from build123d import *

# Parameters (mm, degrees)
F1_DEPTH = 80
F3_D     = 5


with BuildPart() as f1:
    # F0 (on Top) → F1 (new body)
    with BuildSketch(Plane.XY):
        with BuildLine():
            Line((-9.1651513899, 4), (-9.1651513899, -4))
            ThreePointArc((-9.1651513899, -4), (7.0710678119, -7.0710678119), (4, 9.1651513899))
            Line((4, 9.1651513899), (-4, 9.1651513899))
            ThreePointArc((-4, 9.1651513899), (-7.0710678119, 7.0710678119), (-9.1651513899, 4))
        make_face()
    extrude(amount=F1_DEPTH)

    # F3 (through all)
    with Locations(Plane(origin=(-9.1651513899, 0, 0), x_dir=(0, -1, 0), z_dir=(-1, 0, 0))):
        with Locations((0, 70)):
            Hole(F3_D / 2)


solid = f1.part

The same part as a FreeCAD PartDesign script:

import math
import FreeCAD as App
import Part
import Sketcher

V = App.Vector

doc = App.newDocument("Part")
body = doc.addObject("PartDesign::Body", "Body")

# Sketch on XY plane
sketch1 = doc.addObject("Sketcher::SketchObject", "Sketch")
body.addObject(sketch1)
sketch1.AttachmentSupport = (doc.XY_Plane, [""])
sketch1.MapMode = "FlatFace"
sketch1.addGeometry(Part.LineSegment(V(-9, 4, 0), V(-9, -4, 0)), False)
sketch1.addGeometry(Part.ArcOfCircle(Part.Circle(V(0, 0, 0), V(0, 0, 1), 10), math.radians(-156), math.radians(66)), False)
sketch1.addGeometry(Part.LineSegment(V(4, 9, 0), V(-4, 9, 0)), False)
sketch1.addGeometry(Part.ArcOfCircle(Part.Circle(V(0, 0, 0), V(0, 0, 1), 10), math.radians(114), math.radians(156)), False)
sketch1.addConstraint(Sketcher.Constraint("Coincident", 0, 2, 1, 1))
sketch1.addConstraint(Sketcher.Constraint("Coincident", 1, 2, 2, 1))
sketch1.addConstraint(Sketcher.Constraint("Coincident", 2, 2, 3, 1))
sketch1.addConstraint(Sketcher.Constraint("Coincident", 3, 2, 0, 1))
sketch1.addConstraint(Sketcher.Constraint("Vertical", 0))
sketch1.addConstraint(Sketcher.Constraint("Horizontal", 2))
sketch1.addConstraint(Sketcher.Constraint("Coincident", 1, 3, -1, 1))
sketch1.addConstraint(Sketcher.Constraint("Coincident", 3, 3, -1, 1))
sketch1.addConstraint(Sketcher.Constraint("Equal", 1, 3))
sketch1.addConstraint(Sketcher.Constraint("Equal", 2, 0))
sketch1.addConstraint(Sketcher.Constraint("Radius", 1, 10.0))
sketch1.addConstraint(Sketcher.Constraint("DistanceX", 2, 2, 2, 1, 8.0))
pad1 = doc.addObject("PartDesign::Pad", "Pad")
body.addObject(pad1)
pad1.Profile = sketch1
pad1.Length = 80

# Sketch on YZ plane
sketch2 = doc.addObject("Sketcher::SketchObject", "Sketch001")
body.addObject(sketch2)
sketch2.AttachmentSupport = (doc.YZ_Plane, [""])
sketch2.MapMode = "FlatFace"
sketch2.AttachmentOffset = App.Placement(V(0, 0, -9.165151), App.Rotation())
sketch2.addGeometry(Part.Circle(V(0, 70, 0), V(0, 0, 1), 2.5), False)
sketch2.addConstraint(Sketcher.Constraint("PointOnObject", 0, 3, -2))
sketch2.addConstraint(Sketcher.Constraint("Diameter", 0, 5.0))
sketch2.addConstraint(Sketcher.Constraint("DistanceY", -1, 1, 0, 3, 70.0))
doc.recompute()
hole = doc.addObject("PartDesign::Hole", "Hole")
body.addObject(hole)
hole.Profile = sketch2
hole.ThreadType = "None"
hole.Diameter = 5
hole.DepthType = "ThroughAll"
hole.Reversed = True

doc.recompute()
